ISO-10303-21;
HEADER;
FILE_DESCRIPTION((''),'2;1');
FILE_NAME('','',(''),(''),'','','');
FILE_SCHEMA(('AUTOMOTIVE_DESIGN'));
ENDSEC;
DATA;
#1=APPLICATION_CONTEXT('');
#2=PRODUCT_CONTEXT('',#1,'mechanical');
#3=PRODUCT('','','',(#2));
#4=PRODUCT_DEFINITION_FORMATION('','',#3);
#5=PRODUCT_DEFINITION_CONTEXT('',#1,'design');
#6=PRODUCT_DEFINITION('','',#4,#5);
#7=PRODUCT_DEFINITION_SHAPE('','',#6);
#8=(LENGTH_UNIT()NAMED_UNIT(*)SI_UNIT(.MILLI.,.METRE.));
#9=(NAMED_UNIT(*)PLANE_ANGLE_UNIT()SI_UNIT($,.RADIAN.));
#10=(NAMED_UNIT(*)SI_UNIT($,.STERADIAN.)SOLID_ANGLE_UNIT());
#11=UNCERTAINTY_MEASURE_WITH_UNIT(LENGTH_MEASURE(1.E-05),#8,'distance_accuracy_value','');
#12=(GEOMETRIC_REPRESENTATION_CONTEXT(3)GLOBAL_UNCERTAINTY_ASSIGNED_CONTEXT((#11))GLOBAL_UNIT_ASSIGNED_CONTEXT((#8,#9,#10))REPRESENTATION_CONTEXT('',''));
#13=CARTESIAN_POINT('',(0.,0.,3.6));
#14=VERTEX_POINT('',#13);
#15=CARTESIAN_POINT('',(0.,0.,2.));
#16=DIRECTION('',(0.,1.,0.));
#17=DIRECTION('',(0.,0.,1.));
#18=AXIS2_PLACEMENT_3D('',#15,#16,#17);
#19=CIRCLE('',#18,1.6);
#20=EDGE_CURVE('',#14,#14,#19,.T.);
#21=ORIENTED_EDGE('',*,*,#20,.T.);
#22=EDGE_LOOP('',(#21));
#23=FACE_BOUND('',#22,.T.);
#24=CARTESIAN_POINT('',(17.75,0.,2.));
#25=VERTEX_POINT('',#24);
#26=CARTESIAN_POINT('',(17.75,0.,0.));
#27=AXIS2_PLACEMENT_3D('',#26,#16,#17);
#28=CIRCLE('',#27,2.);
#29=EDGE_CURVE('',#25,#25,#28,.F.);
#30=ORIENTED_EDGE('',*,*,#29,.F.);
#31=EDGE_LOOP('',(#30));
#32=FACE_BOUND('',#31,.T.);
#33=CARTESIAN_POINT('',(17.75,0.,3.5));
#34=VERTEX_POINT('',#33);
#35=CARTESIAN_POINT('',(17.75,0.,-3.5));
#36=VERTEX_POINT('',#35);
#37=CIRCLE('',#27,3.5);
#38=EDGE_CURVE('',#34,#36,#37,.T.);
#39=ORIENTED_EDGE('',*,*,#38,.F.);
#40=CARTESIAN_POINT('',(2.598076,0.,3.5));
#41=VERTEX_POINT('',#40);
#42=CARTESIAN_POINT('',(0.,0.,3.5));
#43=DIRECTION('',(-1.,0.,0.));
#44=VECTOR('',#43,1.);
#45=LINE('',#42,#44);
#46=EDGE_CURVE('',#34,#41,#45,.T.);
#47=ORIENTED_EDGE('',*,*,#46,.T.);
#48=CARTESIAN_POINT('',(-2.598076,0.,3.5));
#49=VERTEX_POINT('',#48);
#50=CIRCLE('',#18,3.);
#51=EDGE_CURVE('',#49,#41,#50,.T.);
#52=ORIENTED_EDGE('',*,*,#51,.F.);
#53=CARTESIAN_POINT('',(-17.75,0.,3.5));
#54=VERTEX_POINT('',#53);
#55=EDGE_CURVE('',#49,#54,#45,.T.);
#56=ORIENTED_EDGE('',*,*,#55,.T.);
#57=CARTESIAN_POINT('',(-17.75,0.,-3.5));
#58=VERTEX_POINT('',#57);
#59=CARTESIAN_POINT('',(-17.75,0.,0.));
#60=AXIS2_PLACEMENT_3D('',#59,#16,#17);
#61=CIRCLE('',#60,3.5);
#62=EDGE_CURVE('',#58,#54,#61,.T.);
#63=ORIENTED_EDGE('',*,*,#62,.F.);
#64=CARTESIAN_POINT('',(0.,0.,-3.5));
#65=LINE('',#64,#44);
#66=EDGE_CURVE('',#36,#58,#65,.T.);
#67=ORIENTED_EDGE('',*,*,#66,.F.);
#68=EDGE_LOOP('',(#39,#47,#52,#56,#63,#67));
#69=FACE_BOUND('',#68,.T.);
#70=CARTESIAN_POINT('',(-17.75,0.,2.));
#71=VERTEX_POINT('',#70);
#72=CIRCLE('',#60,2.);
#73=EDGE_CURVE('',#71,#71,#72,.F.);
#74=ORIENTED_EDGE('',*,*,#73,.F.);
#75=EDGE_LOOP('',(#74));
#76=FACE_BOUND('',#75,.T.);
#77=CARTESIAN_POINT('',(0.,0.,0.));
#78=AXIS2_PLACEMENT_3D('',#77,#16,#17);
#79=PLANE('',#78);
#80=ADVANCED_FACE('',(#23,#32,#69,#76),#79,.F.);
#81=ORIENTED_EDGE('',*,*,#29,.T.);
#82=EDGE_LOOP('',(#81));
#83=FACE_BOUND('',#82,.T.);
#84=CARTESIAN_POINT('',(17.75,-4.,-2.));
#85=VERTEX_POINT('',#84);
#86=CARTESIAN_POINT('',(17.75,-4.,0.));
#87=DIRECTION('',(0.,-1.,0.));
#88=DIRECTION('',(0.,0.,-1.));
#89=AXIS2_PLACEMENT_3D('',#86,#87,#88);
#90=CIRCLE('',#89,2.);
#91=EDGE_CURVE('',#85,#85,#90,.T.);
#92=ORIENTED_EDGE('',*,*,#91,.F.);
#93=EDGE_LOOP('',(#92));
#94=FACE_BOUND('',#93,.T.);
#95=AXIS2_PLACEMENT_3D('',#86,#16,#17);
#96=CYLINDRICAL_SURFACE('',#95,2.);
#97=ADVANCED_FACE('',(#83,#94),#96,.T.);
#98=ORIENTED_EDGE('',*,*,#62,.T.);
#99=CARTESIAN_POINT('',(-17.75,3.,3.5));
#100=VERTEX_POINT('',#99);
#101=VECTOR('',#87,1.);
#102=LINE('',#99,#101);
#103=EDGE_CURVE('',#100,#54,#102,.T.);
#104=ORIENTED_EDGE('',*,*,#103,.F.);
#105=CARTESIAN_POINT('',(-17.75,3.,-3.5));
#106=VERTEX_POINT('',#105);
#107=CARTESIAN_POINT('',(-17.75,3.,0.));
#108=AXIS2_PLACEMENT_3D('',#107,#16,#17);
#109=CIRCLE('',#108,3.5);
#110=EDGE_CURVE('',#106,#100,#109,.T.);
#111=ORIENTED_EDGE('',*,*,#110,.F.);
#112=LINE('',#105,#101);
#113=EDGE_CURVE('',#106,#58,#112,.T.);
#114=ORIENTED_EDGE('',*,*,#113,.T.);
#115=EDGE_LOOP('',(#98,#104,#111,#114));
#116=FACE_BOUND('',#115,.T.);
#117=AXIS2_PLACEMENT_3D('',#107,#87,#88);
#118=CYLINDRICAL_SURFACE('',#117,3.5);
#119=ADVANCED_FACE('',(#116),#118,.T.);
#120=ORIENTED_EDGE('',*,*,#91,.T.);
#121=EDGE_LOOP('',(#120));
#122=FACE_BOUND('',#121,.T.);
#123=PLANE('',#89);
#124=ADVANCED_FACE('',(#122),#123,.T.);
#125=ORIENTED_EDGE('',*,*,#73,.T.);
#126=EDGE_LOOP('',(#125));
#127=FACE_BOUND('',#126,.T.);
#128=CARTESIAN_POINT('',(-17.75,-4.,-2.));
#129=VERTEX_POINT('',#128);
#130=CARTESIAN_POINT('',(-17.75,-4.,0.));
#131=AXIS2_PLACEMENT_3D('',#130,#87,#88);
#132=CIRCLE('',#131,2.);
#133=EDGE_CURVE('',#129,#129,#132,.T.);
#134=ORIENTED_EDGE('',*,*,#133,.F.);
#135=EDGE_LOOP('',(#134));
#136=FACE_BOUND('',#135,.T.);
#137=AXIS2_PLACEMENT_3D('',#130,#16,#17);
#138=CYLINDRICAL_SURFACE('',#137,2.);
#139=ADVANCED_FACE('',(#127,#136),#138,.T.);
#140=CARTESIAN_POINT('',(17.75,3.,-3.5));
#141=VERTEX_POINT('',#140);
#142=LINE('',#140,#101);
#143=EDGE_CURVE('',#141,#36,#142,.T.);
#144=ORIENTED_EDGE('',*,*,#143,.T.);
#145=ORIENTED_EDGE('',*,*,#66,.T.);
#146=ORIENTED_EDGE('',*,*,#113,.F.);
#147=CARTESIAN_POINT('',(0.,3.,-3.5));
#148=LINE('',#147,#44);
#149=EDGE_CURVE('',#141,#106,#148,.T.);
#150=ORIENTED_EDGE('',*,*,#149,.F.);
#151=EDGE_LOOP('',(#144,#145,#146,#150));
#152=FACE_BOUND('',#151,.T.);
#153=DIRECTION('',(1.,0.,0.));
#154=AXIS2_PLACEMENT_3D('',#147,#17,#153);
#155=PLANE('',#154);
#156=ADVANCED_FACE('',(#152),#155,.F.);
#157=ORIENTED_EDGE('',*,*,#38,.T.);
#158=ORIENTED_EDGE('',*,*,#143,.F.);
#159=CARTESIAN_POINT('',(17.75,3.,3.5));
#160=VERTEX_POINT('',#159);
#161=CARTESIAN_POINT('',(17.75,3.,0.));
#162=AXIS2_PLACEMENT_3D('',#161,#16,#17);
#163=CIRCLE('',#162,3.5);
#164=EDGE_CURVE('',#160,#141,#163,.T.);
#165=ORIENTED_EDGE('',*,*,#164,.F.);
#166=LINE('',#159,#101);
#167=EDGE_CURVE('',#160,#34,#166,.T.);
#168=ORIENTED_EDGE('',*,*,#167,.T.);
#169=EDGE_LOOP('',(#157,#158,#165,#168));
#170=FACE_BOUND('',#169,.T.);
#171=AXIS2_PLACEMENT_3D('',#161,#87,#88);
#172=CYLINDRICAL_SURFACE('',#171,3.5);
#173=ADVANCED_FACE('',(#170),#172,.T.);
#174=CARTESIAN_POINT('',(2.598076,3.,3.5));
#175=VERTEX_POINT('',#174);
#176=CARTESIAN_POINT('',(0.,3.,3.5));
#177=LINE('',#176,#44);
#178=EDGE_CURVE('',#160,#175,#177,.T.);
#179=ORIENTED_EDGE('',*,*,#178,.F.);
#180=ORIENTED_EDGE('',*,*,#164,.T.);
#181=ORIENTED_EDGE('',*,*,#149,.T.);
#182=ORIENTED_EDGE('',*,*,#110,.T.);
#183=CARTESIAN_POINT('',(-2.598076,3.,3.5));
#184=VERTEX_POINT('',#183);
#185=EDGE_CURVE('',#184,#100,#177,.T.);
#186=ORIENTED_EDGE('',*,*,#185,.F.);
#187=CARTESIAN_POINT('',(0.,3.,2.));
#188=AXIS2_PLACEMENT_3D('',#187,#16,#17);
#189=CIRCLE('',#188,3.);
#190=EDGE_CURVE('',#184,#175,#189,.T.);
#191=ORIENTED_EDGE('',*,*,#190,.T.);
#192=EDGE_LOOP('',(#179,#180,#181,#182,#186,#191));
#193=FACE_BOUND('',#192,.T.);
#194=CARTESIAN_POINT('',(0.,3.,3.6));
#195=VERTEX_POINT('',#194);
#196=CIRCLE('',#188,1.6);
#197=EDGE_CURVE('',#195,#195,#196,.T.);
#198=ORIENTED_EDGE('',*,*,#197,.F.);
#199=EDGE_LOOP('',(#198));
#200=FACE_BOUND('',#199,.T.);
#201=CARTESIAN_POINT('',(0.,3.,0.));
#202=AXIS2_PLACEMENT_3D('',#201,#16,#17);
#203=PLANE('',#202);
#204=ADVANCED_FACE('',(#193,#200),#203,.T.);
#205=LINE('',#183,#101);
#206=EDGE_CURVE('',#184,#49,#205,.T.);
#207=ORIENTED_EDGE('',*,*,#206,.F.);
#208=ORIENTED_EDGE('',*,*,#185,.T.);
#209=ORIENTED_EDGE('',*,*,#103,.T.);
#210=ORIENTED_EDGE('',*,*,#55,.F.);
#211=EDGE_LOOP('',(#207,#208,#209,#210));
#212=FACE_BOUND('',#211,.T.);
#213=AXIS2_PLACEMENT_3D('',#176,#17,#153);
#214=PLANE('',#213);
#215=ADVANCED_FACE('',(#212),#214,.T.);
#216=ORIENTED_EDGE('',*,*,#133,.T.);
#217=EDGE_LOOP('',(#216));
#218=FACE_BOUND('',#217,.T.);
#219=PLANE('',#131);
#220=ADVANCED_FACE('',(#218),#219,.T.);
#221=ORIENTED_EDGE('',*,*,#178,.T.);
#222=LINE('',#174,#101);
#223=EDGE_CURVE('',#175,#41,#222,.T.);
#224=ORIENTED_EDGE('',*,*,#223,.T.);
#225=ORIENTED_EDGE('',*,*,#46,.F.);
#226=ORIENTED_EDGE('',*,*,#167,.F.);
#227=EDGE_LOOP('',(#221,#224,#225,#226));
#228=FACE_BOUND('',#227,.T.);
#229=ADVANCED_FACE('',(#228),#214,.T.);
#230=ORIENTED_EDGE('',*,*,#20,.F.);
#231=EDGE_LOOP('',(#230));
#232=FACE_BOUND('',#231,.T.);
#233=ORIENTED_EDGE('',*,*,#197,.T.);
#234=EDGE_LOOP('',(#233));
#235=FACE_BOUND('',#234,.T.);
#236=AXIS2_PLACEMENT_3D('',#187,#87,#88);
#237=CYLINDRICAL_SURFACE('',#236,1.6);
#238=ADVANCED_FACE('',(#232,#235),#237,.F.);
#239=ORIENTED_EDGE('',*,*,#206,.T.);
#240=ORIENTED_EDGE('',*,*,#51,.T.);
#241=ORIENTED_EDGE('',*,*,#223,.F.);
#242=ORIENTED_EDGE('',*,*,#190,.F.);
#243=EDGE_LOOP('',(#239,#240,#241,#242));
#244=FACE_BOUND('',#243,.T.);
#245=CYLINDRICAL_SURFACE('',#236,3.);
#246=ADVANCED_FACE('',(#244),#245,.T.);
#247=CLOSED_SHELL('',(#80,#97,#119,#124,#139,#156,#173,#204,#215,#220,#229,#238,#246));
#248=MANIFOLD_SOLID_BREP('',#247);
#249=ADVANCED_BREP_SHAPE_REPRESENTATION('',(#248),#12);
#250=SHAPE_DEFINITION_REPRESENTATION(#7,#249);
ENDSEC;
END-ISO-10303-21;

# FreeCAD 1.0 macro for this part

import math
import FreeCAD as App
import Part
import Sketcher
Q = App.Units.Quantity

doc = App.newDocument("Part")
body = doc.addObject("PartDesign::Body", "Body")

sketch1 = doc.addObject("Sketcher::SketchObject", "Sketch")
body.addObject(sketch1)
sketch1.AttachmentSupport = (doc.XZ_Plane, [""])
sketch1.MapMode = "FlatFace"
sketch1.addGeometry(Part.LineSegment(App.Vector(2.6, 3.5, 0), App.Vector(17.8, 3.5, 0)), False)
sketch1.addGeometry(Part.ArcOfCircle(Part.Circle(App.Vector(17.8, 0, 0), App.Vector(0, 0, 1), 3.5), math.radians(-90), math.radians(90)), False)
sketch1.addGeometry(Part.LineSegment(App.Vector(17.8, -3.5, 0), App.Vector(-17.8, -3.5, 0)), False)
sketch1.addGeometry(Part.ArcOfCircle(Part.Circle(App.Vector(-17.8, 0, 0), App.Vector(0, 0, 1), 3.5), math.radians(90), math.radians(270)), False)
sketch1.addGeometry(Part.LineSegment(App.Vector(-17.8, 3.5, 0), App.Vector(-2.6, 3.5, 0)), False)
sketch1.addGeometry(Part.ArcOfCircle(Part.Circle(App.Vector(0, 2, 0), App.Vector(0, 0, 1), 3), math.radians(30), math.radians(150)), False)
sketch1.addGeometry(Part.Circle(App.Vector(0, 2, 0), App.Vector(0, 0, 1), 1.6), False)
sketch1.addConstraint(Sketcher.Constraint("Tangent", 0, 2, 1, 2))
sketch1.addConstraint(Sketcher.Constraint("Tangent", 1, 1, 2, 1))
sketch1.addConstraint(Sketcher.Constraint("Tangent", 2, 2, 3, 2))
sketch1.addConstraint(Sketcher.Constraint("Tangent", 3, 1, 4, 1))
sketch1.addConstraint(Sketcher.Constraint("Coincident", 4, 2, 5, 2))
sketch1.addConstraint(Sketcher.Constraint("Coincident", 5, 1, 0, 1))
sketch1.addConstraint(Sketcher.Constraint("Horizontal", 0))
sketch1.addConstraint(Sketcher.Constraint("Horizontal", 2))
sketch1.addConstraint(Sketcher.Constraint("Horizontal", 4))
sketch1.addConstraint(Sketcher.Constraint("Coincident", 6, 3, 5, 3))
sketch1.addConstraint(Sketcher.Constraint("Equal", 1, 3))
sketch1.addConstraint(Sketcher.Constraint("Symmetric", 1, 3, 3, 3, -1, 1))
sketch1.addConstraint(Sketcher.Constraint("PointOnObject", 5, 3, -2))
sketch1.addConstraint(Sketcher.Constraint("Radius", 5, Q("3 mm")))
sketch1.addConstraint(Sketcher.Constraint("Diameter", 6, Q("3.2 mm")))
sketch1.addConstraint(Sketcher.Constraint("Radius", 1, Q("3.5 mm")))
sketch1.addConstraint(Sketcher.Constraint("DistanceX", 2, 2, 2, 1, Q("35.5 mm")))
sketch1.addConstraint(Sketcher.Constraint("DistanceY", -1, 1, 5, 3, Q("2 mm")))
pad1 = doc.addObject("PartDesign::Pad", "Pad")
body.addObject(pad1)
pad1.Profile = sketch1
pad1.Length = 3
pad1.Reversed = True

sketch2 = doc.addObject("Sketcher::SketchObject", "Sketch001")
body.addObject(sketch2)
sketch2.AttachmentSupport = (doc.XZ_Plane, [""])
sketch2.MapMode = "FlatFace"
sketch2.addGeometry(Part.Circle(App.Vector(-17.8, 0, 0), App.Vector(0, 0, 1), 2), False)
sketch2.addGeometry(Part.Circle(App.Vector(17.8, 0, 0), App.Vector(0, 0, 1), 2), False)
sketch2.addConstraint(Sketcher.Constraint("Equal", 0, 1))
sketch2.addConstraint(Sketcher.Constraint("Symmetric", 0, 3, 1, 3, -1, 1))
sketch2.addConstraint(Sketcher.Constraint("PointOnObject", 0, 3, -1))
sketch2.addConstraint(Sketcher.Constraint("Diameter", 0, Q("4 mm")))
sketch2.addConstraint(Sketcher.Constraint("DistanceX", 0, 3, 1, 3, Q("35.5 mm")))
pad2 = doc.addObject("PartDesign::Pad", "Pad001")
body.addObject(pad2)
pad2.Profile = sketch2
pad2.Length = 4

doc.recompute()
